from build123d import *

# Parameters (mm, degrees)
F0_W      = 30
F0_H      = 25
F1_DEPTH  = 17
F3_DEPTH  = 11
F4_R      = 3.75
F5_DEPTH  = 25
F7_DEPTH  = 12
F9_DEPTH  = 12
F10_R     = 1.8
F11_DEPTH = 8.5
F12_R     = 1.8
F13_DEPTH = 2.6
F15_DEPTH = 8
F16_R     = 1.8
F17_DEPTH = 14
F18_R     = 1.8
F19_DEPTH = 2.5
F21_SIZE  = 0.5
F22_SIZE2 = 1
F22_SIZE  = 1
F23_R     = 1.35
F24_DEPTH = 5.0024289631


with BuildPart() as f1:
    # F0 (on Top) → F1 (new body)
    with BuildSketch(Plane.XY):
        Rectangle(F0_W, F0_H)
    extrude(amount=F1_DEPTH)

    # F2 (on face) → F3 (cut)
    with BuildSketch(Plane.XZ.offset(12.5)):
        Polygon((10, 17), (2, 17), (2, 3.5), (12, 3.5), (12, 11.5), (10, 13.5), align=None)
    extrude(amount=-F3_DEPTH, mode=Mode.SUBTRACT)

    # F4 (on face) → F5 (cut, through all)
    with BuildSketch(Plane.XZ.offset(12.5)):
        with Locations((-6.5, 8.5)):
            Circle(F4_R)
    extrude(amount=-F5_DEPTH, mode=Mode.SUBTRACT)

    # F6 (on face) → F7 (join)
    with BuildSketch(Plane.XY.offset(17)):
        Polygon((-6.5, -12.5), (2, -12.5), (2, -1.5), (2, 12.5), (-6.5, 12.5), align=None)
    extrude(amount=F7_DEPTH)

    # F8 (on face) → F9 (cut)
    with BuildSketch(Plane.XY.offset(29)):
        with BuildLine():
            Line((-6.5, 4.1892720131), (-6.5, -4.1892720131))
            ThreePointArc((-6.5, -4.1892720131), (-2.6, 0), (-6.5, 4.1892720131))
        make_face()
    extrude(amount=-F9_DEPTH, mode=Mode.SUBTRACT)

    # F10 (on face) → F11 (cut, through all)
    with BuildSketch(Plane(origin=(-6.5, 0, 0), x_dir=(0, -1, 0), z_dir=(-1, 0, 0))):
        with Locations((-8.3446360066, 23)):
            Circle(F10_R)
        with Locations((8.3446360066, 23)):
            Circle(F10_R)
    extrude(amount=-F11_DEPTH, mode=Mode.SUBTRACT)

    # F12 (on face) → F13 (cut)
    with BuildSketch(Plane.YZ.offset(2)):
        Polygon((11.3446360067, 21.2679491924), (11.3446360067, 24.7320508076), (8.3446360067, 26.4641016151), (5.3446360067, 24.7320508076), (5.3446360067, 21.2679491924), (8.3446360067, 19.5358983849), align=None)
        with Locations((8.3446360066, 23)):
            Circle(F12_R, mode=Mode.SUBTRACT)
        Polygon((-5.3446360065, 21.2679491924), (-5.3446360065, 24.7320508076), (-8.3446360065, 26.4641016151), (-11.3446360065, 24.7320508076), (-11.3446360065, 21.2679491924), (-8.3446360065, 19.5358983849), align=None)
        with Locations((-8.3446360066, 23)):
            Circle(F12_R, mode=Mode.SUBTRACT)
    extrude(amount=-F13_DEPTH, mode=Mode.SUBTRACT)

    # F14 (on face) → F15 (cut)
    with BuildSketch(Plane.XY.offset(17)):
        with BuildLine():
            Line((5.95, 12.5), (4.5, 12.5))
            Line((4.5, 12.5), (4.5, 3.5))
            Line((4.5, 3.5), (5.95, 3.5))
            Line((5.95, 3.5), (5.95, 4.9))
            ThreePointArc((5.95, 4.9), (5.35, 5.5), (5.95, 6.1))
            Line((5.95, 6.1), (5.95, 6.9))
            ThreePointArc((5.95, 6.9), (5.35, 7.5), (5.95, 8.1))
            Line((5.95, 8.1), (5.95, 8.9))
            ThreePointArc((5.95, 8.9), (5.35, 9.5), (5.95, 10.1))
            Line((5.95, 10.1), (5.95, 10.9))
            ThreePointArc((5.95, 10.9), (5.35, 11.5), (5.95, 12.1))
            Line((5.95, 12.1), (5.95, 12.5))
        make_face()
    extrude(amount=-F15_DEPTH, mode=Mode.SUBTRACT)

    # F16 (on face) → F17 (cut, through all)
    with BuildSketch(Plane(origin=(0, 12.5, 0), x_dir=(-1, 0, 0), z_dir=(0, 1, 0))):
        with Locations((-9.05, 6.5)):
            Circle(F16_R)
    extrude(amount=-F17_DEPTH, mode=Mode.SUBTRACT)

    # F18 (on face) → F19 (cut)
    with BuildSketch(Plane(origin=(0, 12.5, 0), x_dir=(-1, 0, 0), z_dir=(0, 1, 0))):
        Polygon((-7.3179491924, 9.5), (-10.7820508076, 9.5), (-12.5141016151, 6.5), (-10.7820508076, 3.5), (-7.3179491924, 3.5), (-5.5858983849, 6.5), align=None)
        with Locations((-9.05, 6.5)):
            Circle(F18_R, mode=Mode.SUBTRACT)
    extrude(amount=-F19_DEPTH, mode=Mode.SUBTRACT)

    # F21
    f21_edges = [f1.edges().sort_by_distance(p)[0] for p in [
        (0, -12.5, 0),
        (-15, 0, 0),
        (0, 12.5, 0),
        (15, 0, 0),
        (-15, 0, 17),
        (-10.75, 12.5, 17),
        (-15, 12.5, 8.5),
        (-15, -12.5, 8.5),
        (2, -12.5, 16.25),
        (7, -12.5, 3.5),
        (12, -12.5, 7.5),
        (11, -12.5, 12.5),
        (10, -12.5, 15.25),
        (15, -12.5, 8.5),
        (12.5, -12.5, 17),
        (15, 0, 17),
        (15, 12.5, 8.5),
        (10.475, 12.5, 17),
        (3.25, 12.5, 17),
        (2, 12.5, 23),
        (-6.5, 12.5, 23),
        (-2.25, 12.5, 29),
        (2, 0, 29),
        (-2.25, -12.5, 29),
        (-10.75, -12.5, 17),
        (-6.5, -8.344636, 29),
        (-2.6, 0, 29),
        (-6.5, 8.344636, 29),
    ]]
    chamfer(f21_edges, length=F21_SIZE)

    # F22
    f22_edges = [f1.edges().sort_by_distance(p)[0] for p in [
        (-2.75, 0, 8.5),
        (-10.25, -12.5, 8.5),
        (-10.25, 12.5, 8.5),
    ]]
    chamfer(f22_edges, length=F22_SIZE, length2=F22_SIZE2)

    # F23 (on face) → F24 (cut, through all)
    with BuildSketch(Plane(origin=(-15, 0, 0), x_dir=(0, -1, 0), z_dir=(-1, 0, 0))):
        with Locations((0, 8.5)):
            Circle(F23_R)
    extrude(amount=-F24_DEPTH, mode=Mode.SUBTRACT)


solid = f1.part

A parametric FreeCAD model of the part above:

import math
import FreeCAD as App
import Part
import Sketcher

V = App.Vector
Q = App.Units.Quantity


def edges_at(feature, points):
    """Names of the edges that pass closest to the given points."""
    edges = feature.Shape.Edges
    near = lambda p: min(range(len(edges)), key=lambda i: edges[i].distToShape(Part.Vertex(*p))[0])
    return sorted({f"Edge{near(p) + 1}" for p in points})


def add_polygon(sketch, points):
    """Adds a closed chain of lines whose ends are joined by coincident constraints."""
    first, n = sketch.GeometryCount, len(points)
    for a, b in zip(points, points[1:] + points[:1]):
        sketch.addGeometry(Part.LineSegment(App.Vector(*a, 0), App.Vector(*b, 0)), False)
    for i in range(n):
        sketch.addConstraint(Sketcher.Constraint("Coincident", first + i, 2, first + (i + 1) % n, 1))

doc = App.newDocument("Part")
params = doc.addObject("Spreadsheet::Sheet", "Params")
for row, (alias, value) in enumerate([
    ("sketch1_width", "30 mm"),
    ("sketch1_height", "25 mm"),
    ("pad1_length", "17 mm"),
    ("sketch2_width", "8 mm"),
    ("sketch2_width2", "10 mm"),
    ("sketch2_height", "13.5 mm"),
    ("pocket1_length", "11 mm"),
    ("sketch3_diameter", "7.5 mm"),
    ("sketch4_height", "25 mm"),
    ("sketch4_width", "8.5 mm"),
    ("pad2_length", "12 mm"),
    ("sketch5_radius", "4.2 mm"),
    ("pocket3_length", "12 mm"),
    ("sketch6_diameter", "3.6 mm"),
    ("sketch7_diameter", "3.6 mm"),
    ("pocket5_length", "2.6 mm"),
    ("sketch8_radius", "0.6 mm"),
    ("sketch8_height", "9 mm"),
    ("sketch8_height2", "1.4 mm"),
    ("sketch8_height3", "0.8 mm"),
    ("sketch8_width", "1.45 mm"),
    ("pocket6_length", "8 mm"),
    ("sketch9_diameter", "3.6 mm"),
    ("sketch10_diameter", "3.6 mm"),
    ("pocket8_length", "2.5 mm"),
    ("chamfer_size", "0.5 mm"),
    ("chamfer2_size", "1 mm"),
    ("chamfer2_size2", "1 mm"),
    ("sketch11_diameter", "2.7 mm"),
    ("pocket9_length", "5.002429 mm"),
], start=1):
    params.set(f"A{row}", alias)
    params.set(f"B{row}", "=" + value)
    params.setAlias(f"B{row}", alias)

body = doc.addObject("PartDesign::Body", "Body")

sketch1 = body.newObject("Sketcher::SketchObject", "Sketch")
sketch1.AttachmentSupport = (doc.getObject("XY_Plane"), [""])
sketch1.MapMode = "FlatFace"
add_polygon(sketch1, [(-15, 12), (-15, -12), (15, -12), (15, 12)])
sketch1.addConstraint([
    Sketcher.Constraint("Vertical", 0),
    Sketcher.Constraint("Horizontal", 1),
    Sketcher.Constraint("Vertical", 2),
    Sketcher.Constraint("Horizontal", 3),
    Sketcher.Constraint("Symmetric", 0, 2, 2, 2, -1, 1),
    Sketcher.Constraint("DistanceX", 1, 1, 1, 2, 30.0),
    Sketcher.Constraint("DistanceY", 0, 2, 0, 1, 25.0),
])
sketch1.setExpression("Constraints[9]", "Params.sketch1_width")
sketch1.setExpression("Constraints[10]", "Params.sketch1_height")
pad1 = body.newObject("PartDesign::Pad", "Pad")
pad1.Profile = sketch1
pad1.setExpression("Length", "Params.pad1_length")

sketch2 = body.newObject("Sketcher::SketchObject", "Sketch001")
sketch2.AttachmentSupport = (doc.getObject("XZ_Plane"), [""])
sketch2.MapMode = "FlatFace"
sketch2.AttachmentOffset = App.Placement(V(0, 0, 12.5), App.Rotation())
add_polygon(sketch2, [(10, 17), (2, 17), (2, 3.5), (12, 3.5), (12, 11.5), (10, 13.5)])
sketch2.addConstraint([
    Sketcher.Constraint("Horizontal", 0),
    Sketcher.Constraint("Vertical", 1),
    Sketcher.Constraint("Horizontal", 2),
    Sketcher.Constraint("Vertical", 3),
    Sketcher.Constraint("Vertical", 5),
    Sketcher.Constraint("Equal", 0, 3),
    Sketcher.Constraint("DistanceX", 0, 2, 0, 1, 8.0),
    Sketcher.Constraint("DistanceX", 2, 1, 2, 2, 10.0),
    Sketcher.Constraint("Angle", 4, Q("135 deg")),
    Sketcher.Constraint("DistanceY", 1, 2, 1, 1, 13.5),
    Sketcher.Constraint("DistanceX", -1, 1, 0, 2, 2.0),
    Sketcher.Constraint("DistanceY", -1, 1, 0, 2, 17.0),
])
sketch2.setExpression("Constraints[12]", "Params.sketch2_width")
sketch2.setExpression("Constraints[13]", "Params.sketch2_width2")
sketch2.setExpression("Constraints[15]", "Params.sketch2_height")
pocket1 = body.newObject("PartDesign::Pocket", "Pocket")
pocket1.Profile = sketch2
pocket1.setExpression("Length", "Params.pocket1_length")

sketch3 = body.newObject("Sketcher::SketchObject", "Sketch002")
sketch3.AttachmentSupport = (doc.getObject("XZ_Plane"), [""])
sketch3.MapMode = "FlatFace"
sketch3.AttachmentOffset = App.Placement(V(0, 0, 12.5), App.Rotation())
sketch3.addGeometry(Part.Circle(V(-6.5, 8.5, 0), V(0, 0, 1), 3.8), False)
sketch3.addConstraint([
    Sketcher.Constraint("Diameter", 0, 7.5),
    Sketcher.Constraint("DistanceX", 0, 3, -1, 1, 6.5),
    Sketcher.Constraint("DistanceY", -1, 1, 0, 3, 8.5),
])
sketch3.setExpression("Constraints[0]", "Params.sketch3_diameter")
pocket2 = body.newObject("PartDesign::Pocket", "Pocket001")
pocket2.Profile = sketch3
pocket2.Type = "ThroughAll"

sketch4 = body.newObject("Sketcher::SketchObject", "Sketch003")
sketch4.AttachmentSupport = (doc.getObject("XY_Plane"), [""])
sketch4.MapMode = "FlatFace"
sketch4.AttachmentOffset = App.Placement(V(0, 0, 17), App.Rotation())
add_polygon(sketch4, [(-6, -12), (2, -12), (2, 12), (-6, 12)])
sketch4.addConstraint([
    Sketcher.Constraint("Horizontal", 0),
    Sketcher.Constraint("Vertical", 1),
    Sketcher.Constraint("Horizontal", 2),
    Sketcher.Constraint("Vertical", 3),
    Sketcher.Constraint("DistanceY", 1, 1, 1, 2, 25.0),
    Sketcher.Constraint("DistanceX", 0, 1, 0, 2, 8.5),
    Sketcher.Constraint("DistanceX", -1, 1, 0, 2, 2.0),
    Sketcher.Constraint("DistanceY", 0, 2, -1, 1, 12.5),
])
sketch4.setExpression("Constraints[8]", "Params.sketch4_height")
sketch4.setExpression("Constraints[9]", "Params.sketch4_width")
pad2 = body.newObject("PartDesign::Pad", "Pad001")
pad2.Profile = sketch4
pad2.setExpression("Length", "Params.pad2_length")

sketch5 = body.newObject("Sketcher::SketchObject", "Sketch004")
sketch5.AttachmentSupport = (doc.getObject("XY_Plane"), [""])
sketch5.MapMode = "FlatFace"
sketch5.AttachmentOffset = App.Placement(V(0, 0, 29), App.Rotation())
sketch5.addGeometry([
    Part.LineSegment(V(-6.5, 4.2, 0), V(-6.5, -4.2, 0)),
    Part.ArcOfCircle(Part.Circle(V(-6.8, 0, 0), V(0, 0, 1), 4.2), math.radians(-86), math.radians(86)),
], False)
sketch5.addConstraint([
    Sketcher.Constraint("Coincident", 0, 1, 1, 2),
    Sketcher.Constraint("Coincident", 1, 1, 0, 2),
    Sketcher.Constraint("Vertical", 0),
    Sketcher.Constraint("PointOnObject", 1, 3, -1),
    Sketcher.Constraint("Radius", 1, 4.2),
    Sketcher.Constraint("DistanceX", 1, 3, -1, 1, 6.8),
    Sketcher.Constraint("DistanceX", 0, 1, -1, 1, 6.5),
])
sketch5.setExpression("Constraints[4]", "Params.sketch5_radius")
pocket3 = body.newObject("PartDesign::Pocket", "Pocket002")
pocket3.Profile = sketch5
pocket3.setExpression("Length", "Params.pocket3_length")

sketch6 = body.newObject("Sketcher::SketchObject", "Sketch005")
sketch6.AttachmentSupport = (doc.getObject("YZ_Plane"), [""])
sketch6.MapMode = "FlatFace"
sketch6.AttachmentOffset = App.Placement(V(0, 0, -6.5), App.Rotation())
sketch6.addGeometry([
    Part.Circle(V(8.3, 23, 0), V(0, 0, 1), 1.8),
    Part.Circle(V(-8.3, 23, 0), V(0, 0, 1), 1.8),
], False)
sketch6.addConstraint([
    Sketcher.Constraint("Equal", 0, 1),
    Sketcher.Constraint("Symmetric", 0, 3, 1, 3, -2),
    Sketcher.Constraint("Diameter", 0, 3.6),
    Sketcher.Constraint("DistanceY", -1, 1, 0, 3, 23.0),
    Sketcher.Constraint("DistanceX", -1, 1, 0, 3, 8.344636),
])
sketch6.setExpression("Constraints[2]", "Params.sketch6_diameter")
pocket4 = body.newObject("PartDesign::Pocket", "Pocket003")
pocket4.Profile = sketch6
pocket4.Type = "ThroughAll"
pocket4.Reversed = True

sketch7 = body.newObject("Sketcher::SketchObject", "Sketch006")
sketch7.AttachmentSupport = (doc.getObject("YZ_Plane"), [""])
sketch7.MapMode = "FlatFace"
sketch7.AttachmentOffset = App.Placement(V(0, 0, 2), App.Rotation())
add_polygon(sketch7, [(11.3, 21.3), (11.3, 24.7), (8.3, 26.5), (5.3, 24.7), (5.3, 21.3), (8.3, 19.5)])
sketch7.addGeometry(Part.Circle(V(8.3, 23, 0), V(0, 0, 1), 1.8), False)
add_polygon(sketch7, [(-5.3, 21.3), (-5.3, 24.7), (-8.3, 26.5), (-11.3, 24.7), (-11.3, 21.3), (-8.3, 19.5)])
sketch7.addGeometry(Part.Circle(V(-8.3, 23, 0), V(0, 0, 1), 1.8), False)
sketch7.addConstraint([
    Sketcher.Constraint("Vertical", 0),
    Sketcher.Constraint("Vertical", 3),
    Sketcher.Constraint("Vertical", 7),
    Sketcher.Constraint("Vertical", 10),
    Sketcher.Constraint("Equal", 6, 13),
    Sketcher.Constraint("Symmetric", 6, 3, 13, 3, -2),
    Sketcher.Constraint("Symmetric", 2, 2, 7, 2, -2),
    Sketcher.Constraint("Symmetric", 1, 2, 8, 2, -2),
    Sketcher.Constraint("Symmetric", 0, 2, 9, 2, -2),
    Sketcher.Constraint("Symmetric", 4, 2, 11, 2, -2),
    Sketcher.Constraint("Parallel", 1, 4),
    Sketcher.Constraint("Parallel", 2, 5),
    Sketcher.Constraint("Parallel", 4, 8),
    Sketcher.Constraint("Parallel", 8, 11),
    Sketcher.Constraint("Parallel", 9, 12),
    Sketcher.Constraint("Horizontal", 0, 2, 2, 2),
    Sketcher.Constraint("Horizontal", 3, 2, 5, 2),
    Sketcher.Constraint("Vertical", 6, 3, 1, 2),
    Sketcher.Constraint("Diameter", 6, 3.6),
    Sketcher.Constraint("Angle", 1, Q("150 deg")),
    Sketcher.Constraint("DistanceY", -1, 1, 6, 3, 23.0),
    Sketcher.Constraint("DistanceX", 6, 3, 0, 2, 3.0),
    Sketcher.Constraint("DistanceY", 0, 1, 0, 2, 3.464102),
    Sketcher.Constraint("DistanceY", -1, 1, 1, 2, 26.464102),
    Sketcher.Constraint("DistanceX", -1, 1, 6, 3, 8.344636),
])
sketch7.setExpression("Constraints[30]", "Params.sketch7_diameter")
pocket5 = body.newObject("PartDesign::Pocket", "Pocket004")
pocket5.Profile = sketch7
pocket5.setExpression("Length", "Params.pocket5_length")

sketch8 = body.newObject("Sketcher::SketchObject", "Sketch007")
sketch8.AttachmentSupport = (doc.getObject("XY_Plane"), [""])
sketch8.MapMode = "FlatFace"
sketch8.AttachmentOffset = App.Placement(V(0, 0, 17), App.Rotation())
sketch8.addGeometry([
    Part.LineSegment(V(5.95, 12.5, 0), V(4.5, 12.5, 0)),
    Part.LineSegment(V(4.5, 12.5, 0), V(4.5, 3.5, 0)),
    Part.LineSegment(V(4.5, 3.5, 0), V(5.95, 3.5, 0)),
    Part.LineSegment(V(5.95, 3.5, 0), V(5.95, 4.9, 0)),
    Part.ArcOfCircle(Part.Circle(V(5.95, 5.5, 0), V(0, 0, 1), 0.6), math.radians(90), math.radians(270)),
    Part.LineSegment(V(5.95, 6.1, 0), V(5.95, 6.9, 0)),
    Part.ArcOfCircle(Part.Circle(V(5.95, 7.5, 0), V(0, 0, 1), 0.6), math.radians(90), math.radians(270)),
    Part.LineSegment(V(5.95, 8.1, 0), V(5.95, 8.9, 0)),
    Part.ArcOfCircle(Part.Circle(V(5.95, 9.5, 0), V(0, 0, 1), 0.6), math.radians(90), math.radians(270)),
    Part.LineSegment(V(5.95, 10.1, 0), V(5.95, 10.9, 0)),
    Part.ArcOfCircle(Part.Circle(V(5.95, 11.5, 0), V(0, 0, 1), 0.6), math.radians(90), math.radians(270)),
    Part.LineSegment(V(5.95, 12.1, 0), V(5.95, 12.5, 0)),
], False)
sketch8.addConstraint([
    Sketcher.Constraint("Coincident", 0, 2, 1, 1),
    Sketcher.Constraint("Coincident", 1, 2, 2, 1),
    Sketcher.Constraint("Coincident", 2, 2, 3, 1),
    Sketcher.Constraint("Coincident", 3, 2, 4, 2),
    Sketcher.Constraint("Coincident", 4, 1, 5, 1),
    Sketcher.Constraint("Coincident", 5, 2, 6, 2),
    Sketcher.Constraint("Coincident", 6, 1, 7, 1),
    Sketcher.Constraint("Coincident", 7, 2, 8, 2),
    Sketcher.Constraint("Coincident", 8, 1, 9, 1),
    Sketcher.Constraint("Coincident", 9, 2, 10, 2),
    Sketcher.Constraint("Coincident", 10, 1, 11, 1),
    Sketcher.Constraint("Coincident", 11, 2, 0, 1),
    Sketcher.Constraint("Horizontal", 0),
    Sketcher.Constraint("Vertical", 1),
    Sketcher.Constraint("Horizontal", 2),
    Sketcher.Constraint("Vertical", 3),
    Sketcher.Constraint("Vertical", 5),
    Sketcher.Constraint("Vertical", 7),
    Sketcher.Constraint("Vertical", 9),
    Sketcher.Constraint("Vertical", 11),
    Sketcher.Constraint("Equal", 4, 6),
    Sketcher.Constraint("Equal", 6, 8),
    Sketcher.Constraint("Equal", 8, 10),
    Sketcher.Constraint("Vertical", 4, 3, 6, 3),
    Sketcher.Constraint("Vertical", 6, 3, 8, 3),
    Sketcher.Constraint("Vertical", 8, 3, 10, 3),
    Sketcher.Constraint("Vertical", 10, 3, 2, 2),
    Sketcher.Constraint("Vertical", 3, 2, 4, 1),
    Sketcher.Constraint("Vertical", 5, 2, 6, 1),
    Sketcher.Constraint("Vertical", 7, 2, 8, 1),
    Sketcher.Constraint("Vertical", 9, 2, 10, 1),
    Sketcher.Constraint("Equal", 5, 7),
    Sketcher.Constraint("Equal", 7, 9),
    Sketcher.Constraint("Radius", 4, 0.6),
    Sketcher.Constraint("DistanceY", 1, 2, 1, 1, 9.0),
    Sketcher.Constraint("DistanceY", 3, 1, 3, 2, 1.4),
    Sketcher.Constraint("DistanceY", 5, 1, 5, 2, 0.8),
    Sketcher.Constraint("DistanceX", 0, 2, 0, 1, 1.45),
    Sketcher.Constraint("DistanceY", -1, 1, 4, 3, 5.5),
    Sketcher.Constraint("DistanceX", -1, 1, 0, 2, 4.5),
])
sketch8.setExpression("Constraints[33]", "Params.sketch8_radius")
sketch8.setExpression("Constraints[34]", "Params.sketch8_height")
sketch8.setExpression("Constraints[35]", "Params.sketch8_height2")
sketch8.setExpression("Constraints[36]", "Params.sketch8_height3")
sketch8.setExpression("Constraints[37]", "Params.sketch8_width")
pocket6 = body.newObject("PartDesign::Pocket", "Pocket005")
pocket6.Profile = sketch8
pocket6.setExpression("Length", "Params.pocket6_length")

sketch9 = body.newObject("Sketcher::SketchObject", "Sketch008")
sketch9.AttachmentSupport = (doc.getObject("XZ_Plane"), [""])
sketch9.MapMode = "FlatFace"
sketch9.AttachmentOffset = App.Placement(V(0, 0, -12.5), App.Rotation())
sketch9.addGeometry(Part.Circle(V(9.1, 6.5, 0), V(0, 0, 1), 1.8), False)
sketch9.addConstraint([
    Sketcher.Constraint("Diameter", 0, 3.6),
    Sketcher.Constraint("DistanceY", -1, 1, 0, 3, 6.5),
    Sketcher.Constraint("DistanceX", -1, 1, 0, 3, 9.05),
])
sketch9.setExpression("Constraints[0]", "Params.sketch9_diameter")
pocket7 = body.newObject("PartDesign::Pocket", "Pocket006")
pocket7.Profile = sketch9
pocket7.Type = "ThroughAll"
pocket7.Reversed = True

sketch10 = body.newObject("Sketcher::SketchObject", "Sketch009")
sketch10.AttachmentSupport = (doc.getObject("XZ_Plane"), [""])
sketch10.MapMode = "FlatFace"
sketch10.AttachmentOffset = App.Placement(V(0, 0, -12.5), App.Rotation())
add_polygon(sketch10, [(7.3, 9.5), (10.8, 9.5), (12.5, 6.5), (10.8, 3.5), (7.3, 3.5), (5.6, 6.5)])
sketch10.addGeometry(Part.Circle(V(9.1, 6.5, 0), V(0, 0, 1), 1.8), False)
sketch10.addConstraint([
    Sketcher.Constraint("Horizontal", 0),
    Sketcher.Constraint("Horizontal", 3),
    Sketcher.Constraint("Parallel", 1, 4),
    Sketcher.Constraint("Parallel", 2, 5),
    Sketcher.Constraint("Horizontal", 6, 3, 1, 2),
    Sketcher.Constraint("Horizontal", 1, 2, 4, 2),
    Sketcher.Constraint("Vertical", 0, 2, 2, 2),
    Sketcher.Constraint("Vertical", 3, 2, 5, 2),
    Sketcher.Constraint("Diameter", 6, 3.6),
    Sketcher.Constraint("Angle", 1, Q("-60 deg")),
    Sketcher.Constraint("DistanceY", 6, 3, 0, 2, 3.0),
    Sketcher.Constraint("DistanceY", -1, 1, 6, 3, 6.5),
    Sketcher.Constraint("DistanceX", -1, 1, 6, 3, 9.05),
    Sketcher.Constraint("DistanceX", 0, 1, 0, 2, 3.464102),
    Sketcher.Constraint("DistanceX", -1, 1, 1, 2, 12.514102),
])
sketch10.setExpression("Constraints[14]", "Params.sketch10_diameter")
pocket8 = body.newObject("PartDesign::Pocket", "Pocket007")
pocket8.Profile = sketch10
pocket8.setExpression("Length", "Params.pocket8_length")
pocket8.Reversed = True
doc.recompute()

chamfer = body.newObject("PartDesign::Chamfer", "Chamfer")
chamfer.Base = (pocket8, edges_at(pocket8, [
    (0, -12.5, 0),
    (-15, 0, 0),
    (0, 12.5, 0),
    (15, 0, 0),
    (-15, 0, 17),
    (-10.75, 12.5, 17),
    (-15, 12.5, 8.5),
    (-15, -12.5, 8.5),
    (2, -12.5, 16.25),
    (7, -12.5, 3.5),
    (12, -12.5, 7.5),
    (11, -12.5, 12.5),
    (10, -12.5, 15.25),
    (15, -12.5, 8.5),
    (12.5, -12.5, 17),
    (15, 0, 17),
    (15, 12.5, 8.5),
    (10.475, 12.5, 17),
    (3.25, 12.5, 17),
    (2, 12.5, 23),
    (-6.5, 12.5, 23),
    (-2.25, 12.5, 29),
    (2, 0, 29),
    (-2.25, -12.5, 29),
    (-10.75, -12.5, 17),
    (-6.5, -8.345, 29),
    (-2.6, 0, 29),
    (-6.5, 8.345, 29),
]))
chamfer.setExpression("Size", "Params.chamfer_size")
doc.recompute()

chamfer2 = body.newObject("PartDesign::Chamfer", "Chamfer001")
chamfer2.Base = (chamfer, edges_at(chamfer, [(-2.75, 0, 8.5), (-10.25, -12.5, 8.5), (-10.25, 12.5, 8.5)]))
chamfer2.ChamferType = "Two distances"
chamfer2.setExpression("Size", "Params.chamfer2_size")
chamfer2.setExpression("Size2", "Params.chamfer2_size2")

sketch11 = body.newObject("Sketcher::SketchObject", "Sketch010")
sketch11.AttachmentSupport = (doc.getObject("YZ_Plane"), [""])
sketch11.MapMode = "FlatFace"
sketch11.AttachmentOffset = App.Placement(V(0, 0, -15), App.Rotation())
sketch11.addGeometry(Part.Circle(V(0, 8.5, 0), V(0, 0, 1), 1.4), False)
sketch11.addConstraint([
    Sketcher.Constraint("PointOnObject", 0, 3, -2),
    Sketcher.Constraint("Diameter", 0, 2.7),
    Sketcher.Constraint("DistanceY", -1, 1, 0, 3, 8.5),
])
sketch11.setExpression("Constraints[1]", "Params.sketch11_diameter")
pocket9 = body.newObject("PartDesign::Pocket", "Pocket008")
pocket9.Profile = sketch11
pocket9.setExpression("Length", "Params.pocket9_length")
pocket9.Reversed = True

doc.recompute()
